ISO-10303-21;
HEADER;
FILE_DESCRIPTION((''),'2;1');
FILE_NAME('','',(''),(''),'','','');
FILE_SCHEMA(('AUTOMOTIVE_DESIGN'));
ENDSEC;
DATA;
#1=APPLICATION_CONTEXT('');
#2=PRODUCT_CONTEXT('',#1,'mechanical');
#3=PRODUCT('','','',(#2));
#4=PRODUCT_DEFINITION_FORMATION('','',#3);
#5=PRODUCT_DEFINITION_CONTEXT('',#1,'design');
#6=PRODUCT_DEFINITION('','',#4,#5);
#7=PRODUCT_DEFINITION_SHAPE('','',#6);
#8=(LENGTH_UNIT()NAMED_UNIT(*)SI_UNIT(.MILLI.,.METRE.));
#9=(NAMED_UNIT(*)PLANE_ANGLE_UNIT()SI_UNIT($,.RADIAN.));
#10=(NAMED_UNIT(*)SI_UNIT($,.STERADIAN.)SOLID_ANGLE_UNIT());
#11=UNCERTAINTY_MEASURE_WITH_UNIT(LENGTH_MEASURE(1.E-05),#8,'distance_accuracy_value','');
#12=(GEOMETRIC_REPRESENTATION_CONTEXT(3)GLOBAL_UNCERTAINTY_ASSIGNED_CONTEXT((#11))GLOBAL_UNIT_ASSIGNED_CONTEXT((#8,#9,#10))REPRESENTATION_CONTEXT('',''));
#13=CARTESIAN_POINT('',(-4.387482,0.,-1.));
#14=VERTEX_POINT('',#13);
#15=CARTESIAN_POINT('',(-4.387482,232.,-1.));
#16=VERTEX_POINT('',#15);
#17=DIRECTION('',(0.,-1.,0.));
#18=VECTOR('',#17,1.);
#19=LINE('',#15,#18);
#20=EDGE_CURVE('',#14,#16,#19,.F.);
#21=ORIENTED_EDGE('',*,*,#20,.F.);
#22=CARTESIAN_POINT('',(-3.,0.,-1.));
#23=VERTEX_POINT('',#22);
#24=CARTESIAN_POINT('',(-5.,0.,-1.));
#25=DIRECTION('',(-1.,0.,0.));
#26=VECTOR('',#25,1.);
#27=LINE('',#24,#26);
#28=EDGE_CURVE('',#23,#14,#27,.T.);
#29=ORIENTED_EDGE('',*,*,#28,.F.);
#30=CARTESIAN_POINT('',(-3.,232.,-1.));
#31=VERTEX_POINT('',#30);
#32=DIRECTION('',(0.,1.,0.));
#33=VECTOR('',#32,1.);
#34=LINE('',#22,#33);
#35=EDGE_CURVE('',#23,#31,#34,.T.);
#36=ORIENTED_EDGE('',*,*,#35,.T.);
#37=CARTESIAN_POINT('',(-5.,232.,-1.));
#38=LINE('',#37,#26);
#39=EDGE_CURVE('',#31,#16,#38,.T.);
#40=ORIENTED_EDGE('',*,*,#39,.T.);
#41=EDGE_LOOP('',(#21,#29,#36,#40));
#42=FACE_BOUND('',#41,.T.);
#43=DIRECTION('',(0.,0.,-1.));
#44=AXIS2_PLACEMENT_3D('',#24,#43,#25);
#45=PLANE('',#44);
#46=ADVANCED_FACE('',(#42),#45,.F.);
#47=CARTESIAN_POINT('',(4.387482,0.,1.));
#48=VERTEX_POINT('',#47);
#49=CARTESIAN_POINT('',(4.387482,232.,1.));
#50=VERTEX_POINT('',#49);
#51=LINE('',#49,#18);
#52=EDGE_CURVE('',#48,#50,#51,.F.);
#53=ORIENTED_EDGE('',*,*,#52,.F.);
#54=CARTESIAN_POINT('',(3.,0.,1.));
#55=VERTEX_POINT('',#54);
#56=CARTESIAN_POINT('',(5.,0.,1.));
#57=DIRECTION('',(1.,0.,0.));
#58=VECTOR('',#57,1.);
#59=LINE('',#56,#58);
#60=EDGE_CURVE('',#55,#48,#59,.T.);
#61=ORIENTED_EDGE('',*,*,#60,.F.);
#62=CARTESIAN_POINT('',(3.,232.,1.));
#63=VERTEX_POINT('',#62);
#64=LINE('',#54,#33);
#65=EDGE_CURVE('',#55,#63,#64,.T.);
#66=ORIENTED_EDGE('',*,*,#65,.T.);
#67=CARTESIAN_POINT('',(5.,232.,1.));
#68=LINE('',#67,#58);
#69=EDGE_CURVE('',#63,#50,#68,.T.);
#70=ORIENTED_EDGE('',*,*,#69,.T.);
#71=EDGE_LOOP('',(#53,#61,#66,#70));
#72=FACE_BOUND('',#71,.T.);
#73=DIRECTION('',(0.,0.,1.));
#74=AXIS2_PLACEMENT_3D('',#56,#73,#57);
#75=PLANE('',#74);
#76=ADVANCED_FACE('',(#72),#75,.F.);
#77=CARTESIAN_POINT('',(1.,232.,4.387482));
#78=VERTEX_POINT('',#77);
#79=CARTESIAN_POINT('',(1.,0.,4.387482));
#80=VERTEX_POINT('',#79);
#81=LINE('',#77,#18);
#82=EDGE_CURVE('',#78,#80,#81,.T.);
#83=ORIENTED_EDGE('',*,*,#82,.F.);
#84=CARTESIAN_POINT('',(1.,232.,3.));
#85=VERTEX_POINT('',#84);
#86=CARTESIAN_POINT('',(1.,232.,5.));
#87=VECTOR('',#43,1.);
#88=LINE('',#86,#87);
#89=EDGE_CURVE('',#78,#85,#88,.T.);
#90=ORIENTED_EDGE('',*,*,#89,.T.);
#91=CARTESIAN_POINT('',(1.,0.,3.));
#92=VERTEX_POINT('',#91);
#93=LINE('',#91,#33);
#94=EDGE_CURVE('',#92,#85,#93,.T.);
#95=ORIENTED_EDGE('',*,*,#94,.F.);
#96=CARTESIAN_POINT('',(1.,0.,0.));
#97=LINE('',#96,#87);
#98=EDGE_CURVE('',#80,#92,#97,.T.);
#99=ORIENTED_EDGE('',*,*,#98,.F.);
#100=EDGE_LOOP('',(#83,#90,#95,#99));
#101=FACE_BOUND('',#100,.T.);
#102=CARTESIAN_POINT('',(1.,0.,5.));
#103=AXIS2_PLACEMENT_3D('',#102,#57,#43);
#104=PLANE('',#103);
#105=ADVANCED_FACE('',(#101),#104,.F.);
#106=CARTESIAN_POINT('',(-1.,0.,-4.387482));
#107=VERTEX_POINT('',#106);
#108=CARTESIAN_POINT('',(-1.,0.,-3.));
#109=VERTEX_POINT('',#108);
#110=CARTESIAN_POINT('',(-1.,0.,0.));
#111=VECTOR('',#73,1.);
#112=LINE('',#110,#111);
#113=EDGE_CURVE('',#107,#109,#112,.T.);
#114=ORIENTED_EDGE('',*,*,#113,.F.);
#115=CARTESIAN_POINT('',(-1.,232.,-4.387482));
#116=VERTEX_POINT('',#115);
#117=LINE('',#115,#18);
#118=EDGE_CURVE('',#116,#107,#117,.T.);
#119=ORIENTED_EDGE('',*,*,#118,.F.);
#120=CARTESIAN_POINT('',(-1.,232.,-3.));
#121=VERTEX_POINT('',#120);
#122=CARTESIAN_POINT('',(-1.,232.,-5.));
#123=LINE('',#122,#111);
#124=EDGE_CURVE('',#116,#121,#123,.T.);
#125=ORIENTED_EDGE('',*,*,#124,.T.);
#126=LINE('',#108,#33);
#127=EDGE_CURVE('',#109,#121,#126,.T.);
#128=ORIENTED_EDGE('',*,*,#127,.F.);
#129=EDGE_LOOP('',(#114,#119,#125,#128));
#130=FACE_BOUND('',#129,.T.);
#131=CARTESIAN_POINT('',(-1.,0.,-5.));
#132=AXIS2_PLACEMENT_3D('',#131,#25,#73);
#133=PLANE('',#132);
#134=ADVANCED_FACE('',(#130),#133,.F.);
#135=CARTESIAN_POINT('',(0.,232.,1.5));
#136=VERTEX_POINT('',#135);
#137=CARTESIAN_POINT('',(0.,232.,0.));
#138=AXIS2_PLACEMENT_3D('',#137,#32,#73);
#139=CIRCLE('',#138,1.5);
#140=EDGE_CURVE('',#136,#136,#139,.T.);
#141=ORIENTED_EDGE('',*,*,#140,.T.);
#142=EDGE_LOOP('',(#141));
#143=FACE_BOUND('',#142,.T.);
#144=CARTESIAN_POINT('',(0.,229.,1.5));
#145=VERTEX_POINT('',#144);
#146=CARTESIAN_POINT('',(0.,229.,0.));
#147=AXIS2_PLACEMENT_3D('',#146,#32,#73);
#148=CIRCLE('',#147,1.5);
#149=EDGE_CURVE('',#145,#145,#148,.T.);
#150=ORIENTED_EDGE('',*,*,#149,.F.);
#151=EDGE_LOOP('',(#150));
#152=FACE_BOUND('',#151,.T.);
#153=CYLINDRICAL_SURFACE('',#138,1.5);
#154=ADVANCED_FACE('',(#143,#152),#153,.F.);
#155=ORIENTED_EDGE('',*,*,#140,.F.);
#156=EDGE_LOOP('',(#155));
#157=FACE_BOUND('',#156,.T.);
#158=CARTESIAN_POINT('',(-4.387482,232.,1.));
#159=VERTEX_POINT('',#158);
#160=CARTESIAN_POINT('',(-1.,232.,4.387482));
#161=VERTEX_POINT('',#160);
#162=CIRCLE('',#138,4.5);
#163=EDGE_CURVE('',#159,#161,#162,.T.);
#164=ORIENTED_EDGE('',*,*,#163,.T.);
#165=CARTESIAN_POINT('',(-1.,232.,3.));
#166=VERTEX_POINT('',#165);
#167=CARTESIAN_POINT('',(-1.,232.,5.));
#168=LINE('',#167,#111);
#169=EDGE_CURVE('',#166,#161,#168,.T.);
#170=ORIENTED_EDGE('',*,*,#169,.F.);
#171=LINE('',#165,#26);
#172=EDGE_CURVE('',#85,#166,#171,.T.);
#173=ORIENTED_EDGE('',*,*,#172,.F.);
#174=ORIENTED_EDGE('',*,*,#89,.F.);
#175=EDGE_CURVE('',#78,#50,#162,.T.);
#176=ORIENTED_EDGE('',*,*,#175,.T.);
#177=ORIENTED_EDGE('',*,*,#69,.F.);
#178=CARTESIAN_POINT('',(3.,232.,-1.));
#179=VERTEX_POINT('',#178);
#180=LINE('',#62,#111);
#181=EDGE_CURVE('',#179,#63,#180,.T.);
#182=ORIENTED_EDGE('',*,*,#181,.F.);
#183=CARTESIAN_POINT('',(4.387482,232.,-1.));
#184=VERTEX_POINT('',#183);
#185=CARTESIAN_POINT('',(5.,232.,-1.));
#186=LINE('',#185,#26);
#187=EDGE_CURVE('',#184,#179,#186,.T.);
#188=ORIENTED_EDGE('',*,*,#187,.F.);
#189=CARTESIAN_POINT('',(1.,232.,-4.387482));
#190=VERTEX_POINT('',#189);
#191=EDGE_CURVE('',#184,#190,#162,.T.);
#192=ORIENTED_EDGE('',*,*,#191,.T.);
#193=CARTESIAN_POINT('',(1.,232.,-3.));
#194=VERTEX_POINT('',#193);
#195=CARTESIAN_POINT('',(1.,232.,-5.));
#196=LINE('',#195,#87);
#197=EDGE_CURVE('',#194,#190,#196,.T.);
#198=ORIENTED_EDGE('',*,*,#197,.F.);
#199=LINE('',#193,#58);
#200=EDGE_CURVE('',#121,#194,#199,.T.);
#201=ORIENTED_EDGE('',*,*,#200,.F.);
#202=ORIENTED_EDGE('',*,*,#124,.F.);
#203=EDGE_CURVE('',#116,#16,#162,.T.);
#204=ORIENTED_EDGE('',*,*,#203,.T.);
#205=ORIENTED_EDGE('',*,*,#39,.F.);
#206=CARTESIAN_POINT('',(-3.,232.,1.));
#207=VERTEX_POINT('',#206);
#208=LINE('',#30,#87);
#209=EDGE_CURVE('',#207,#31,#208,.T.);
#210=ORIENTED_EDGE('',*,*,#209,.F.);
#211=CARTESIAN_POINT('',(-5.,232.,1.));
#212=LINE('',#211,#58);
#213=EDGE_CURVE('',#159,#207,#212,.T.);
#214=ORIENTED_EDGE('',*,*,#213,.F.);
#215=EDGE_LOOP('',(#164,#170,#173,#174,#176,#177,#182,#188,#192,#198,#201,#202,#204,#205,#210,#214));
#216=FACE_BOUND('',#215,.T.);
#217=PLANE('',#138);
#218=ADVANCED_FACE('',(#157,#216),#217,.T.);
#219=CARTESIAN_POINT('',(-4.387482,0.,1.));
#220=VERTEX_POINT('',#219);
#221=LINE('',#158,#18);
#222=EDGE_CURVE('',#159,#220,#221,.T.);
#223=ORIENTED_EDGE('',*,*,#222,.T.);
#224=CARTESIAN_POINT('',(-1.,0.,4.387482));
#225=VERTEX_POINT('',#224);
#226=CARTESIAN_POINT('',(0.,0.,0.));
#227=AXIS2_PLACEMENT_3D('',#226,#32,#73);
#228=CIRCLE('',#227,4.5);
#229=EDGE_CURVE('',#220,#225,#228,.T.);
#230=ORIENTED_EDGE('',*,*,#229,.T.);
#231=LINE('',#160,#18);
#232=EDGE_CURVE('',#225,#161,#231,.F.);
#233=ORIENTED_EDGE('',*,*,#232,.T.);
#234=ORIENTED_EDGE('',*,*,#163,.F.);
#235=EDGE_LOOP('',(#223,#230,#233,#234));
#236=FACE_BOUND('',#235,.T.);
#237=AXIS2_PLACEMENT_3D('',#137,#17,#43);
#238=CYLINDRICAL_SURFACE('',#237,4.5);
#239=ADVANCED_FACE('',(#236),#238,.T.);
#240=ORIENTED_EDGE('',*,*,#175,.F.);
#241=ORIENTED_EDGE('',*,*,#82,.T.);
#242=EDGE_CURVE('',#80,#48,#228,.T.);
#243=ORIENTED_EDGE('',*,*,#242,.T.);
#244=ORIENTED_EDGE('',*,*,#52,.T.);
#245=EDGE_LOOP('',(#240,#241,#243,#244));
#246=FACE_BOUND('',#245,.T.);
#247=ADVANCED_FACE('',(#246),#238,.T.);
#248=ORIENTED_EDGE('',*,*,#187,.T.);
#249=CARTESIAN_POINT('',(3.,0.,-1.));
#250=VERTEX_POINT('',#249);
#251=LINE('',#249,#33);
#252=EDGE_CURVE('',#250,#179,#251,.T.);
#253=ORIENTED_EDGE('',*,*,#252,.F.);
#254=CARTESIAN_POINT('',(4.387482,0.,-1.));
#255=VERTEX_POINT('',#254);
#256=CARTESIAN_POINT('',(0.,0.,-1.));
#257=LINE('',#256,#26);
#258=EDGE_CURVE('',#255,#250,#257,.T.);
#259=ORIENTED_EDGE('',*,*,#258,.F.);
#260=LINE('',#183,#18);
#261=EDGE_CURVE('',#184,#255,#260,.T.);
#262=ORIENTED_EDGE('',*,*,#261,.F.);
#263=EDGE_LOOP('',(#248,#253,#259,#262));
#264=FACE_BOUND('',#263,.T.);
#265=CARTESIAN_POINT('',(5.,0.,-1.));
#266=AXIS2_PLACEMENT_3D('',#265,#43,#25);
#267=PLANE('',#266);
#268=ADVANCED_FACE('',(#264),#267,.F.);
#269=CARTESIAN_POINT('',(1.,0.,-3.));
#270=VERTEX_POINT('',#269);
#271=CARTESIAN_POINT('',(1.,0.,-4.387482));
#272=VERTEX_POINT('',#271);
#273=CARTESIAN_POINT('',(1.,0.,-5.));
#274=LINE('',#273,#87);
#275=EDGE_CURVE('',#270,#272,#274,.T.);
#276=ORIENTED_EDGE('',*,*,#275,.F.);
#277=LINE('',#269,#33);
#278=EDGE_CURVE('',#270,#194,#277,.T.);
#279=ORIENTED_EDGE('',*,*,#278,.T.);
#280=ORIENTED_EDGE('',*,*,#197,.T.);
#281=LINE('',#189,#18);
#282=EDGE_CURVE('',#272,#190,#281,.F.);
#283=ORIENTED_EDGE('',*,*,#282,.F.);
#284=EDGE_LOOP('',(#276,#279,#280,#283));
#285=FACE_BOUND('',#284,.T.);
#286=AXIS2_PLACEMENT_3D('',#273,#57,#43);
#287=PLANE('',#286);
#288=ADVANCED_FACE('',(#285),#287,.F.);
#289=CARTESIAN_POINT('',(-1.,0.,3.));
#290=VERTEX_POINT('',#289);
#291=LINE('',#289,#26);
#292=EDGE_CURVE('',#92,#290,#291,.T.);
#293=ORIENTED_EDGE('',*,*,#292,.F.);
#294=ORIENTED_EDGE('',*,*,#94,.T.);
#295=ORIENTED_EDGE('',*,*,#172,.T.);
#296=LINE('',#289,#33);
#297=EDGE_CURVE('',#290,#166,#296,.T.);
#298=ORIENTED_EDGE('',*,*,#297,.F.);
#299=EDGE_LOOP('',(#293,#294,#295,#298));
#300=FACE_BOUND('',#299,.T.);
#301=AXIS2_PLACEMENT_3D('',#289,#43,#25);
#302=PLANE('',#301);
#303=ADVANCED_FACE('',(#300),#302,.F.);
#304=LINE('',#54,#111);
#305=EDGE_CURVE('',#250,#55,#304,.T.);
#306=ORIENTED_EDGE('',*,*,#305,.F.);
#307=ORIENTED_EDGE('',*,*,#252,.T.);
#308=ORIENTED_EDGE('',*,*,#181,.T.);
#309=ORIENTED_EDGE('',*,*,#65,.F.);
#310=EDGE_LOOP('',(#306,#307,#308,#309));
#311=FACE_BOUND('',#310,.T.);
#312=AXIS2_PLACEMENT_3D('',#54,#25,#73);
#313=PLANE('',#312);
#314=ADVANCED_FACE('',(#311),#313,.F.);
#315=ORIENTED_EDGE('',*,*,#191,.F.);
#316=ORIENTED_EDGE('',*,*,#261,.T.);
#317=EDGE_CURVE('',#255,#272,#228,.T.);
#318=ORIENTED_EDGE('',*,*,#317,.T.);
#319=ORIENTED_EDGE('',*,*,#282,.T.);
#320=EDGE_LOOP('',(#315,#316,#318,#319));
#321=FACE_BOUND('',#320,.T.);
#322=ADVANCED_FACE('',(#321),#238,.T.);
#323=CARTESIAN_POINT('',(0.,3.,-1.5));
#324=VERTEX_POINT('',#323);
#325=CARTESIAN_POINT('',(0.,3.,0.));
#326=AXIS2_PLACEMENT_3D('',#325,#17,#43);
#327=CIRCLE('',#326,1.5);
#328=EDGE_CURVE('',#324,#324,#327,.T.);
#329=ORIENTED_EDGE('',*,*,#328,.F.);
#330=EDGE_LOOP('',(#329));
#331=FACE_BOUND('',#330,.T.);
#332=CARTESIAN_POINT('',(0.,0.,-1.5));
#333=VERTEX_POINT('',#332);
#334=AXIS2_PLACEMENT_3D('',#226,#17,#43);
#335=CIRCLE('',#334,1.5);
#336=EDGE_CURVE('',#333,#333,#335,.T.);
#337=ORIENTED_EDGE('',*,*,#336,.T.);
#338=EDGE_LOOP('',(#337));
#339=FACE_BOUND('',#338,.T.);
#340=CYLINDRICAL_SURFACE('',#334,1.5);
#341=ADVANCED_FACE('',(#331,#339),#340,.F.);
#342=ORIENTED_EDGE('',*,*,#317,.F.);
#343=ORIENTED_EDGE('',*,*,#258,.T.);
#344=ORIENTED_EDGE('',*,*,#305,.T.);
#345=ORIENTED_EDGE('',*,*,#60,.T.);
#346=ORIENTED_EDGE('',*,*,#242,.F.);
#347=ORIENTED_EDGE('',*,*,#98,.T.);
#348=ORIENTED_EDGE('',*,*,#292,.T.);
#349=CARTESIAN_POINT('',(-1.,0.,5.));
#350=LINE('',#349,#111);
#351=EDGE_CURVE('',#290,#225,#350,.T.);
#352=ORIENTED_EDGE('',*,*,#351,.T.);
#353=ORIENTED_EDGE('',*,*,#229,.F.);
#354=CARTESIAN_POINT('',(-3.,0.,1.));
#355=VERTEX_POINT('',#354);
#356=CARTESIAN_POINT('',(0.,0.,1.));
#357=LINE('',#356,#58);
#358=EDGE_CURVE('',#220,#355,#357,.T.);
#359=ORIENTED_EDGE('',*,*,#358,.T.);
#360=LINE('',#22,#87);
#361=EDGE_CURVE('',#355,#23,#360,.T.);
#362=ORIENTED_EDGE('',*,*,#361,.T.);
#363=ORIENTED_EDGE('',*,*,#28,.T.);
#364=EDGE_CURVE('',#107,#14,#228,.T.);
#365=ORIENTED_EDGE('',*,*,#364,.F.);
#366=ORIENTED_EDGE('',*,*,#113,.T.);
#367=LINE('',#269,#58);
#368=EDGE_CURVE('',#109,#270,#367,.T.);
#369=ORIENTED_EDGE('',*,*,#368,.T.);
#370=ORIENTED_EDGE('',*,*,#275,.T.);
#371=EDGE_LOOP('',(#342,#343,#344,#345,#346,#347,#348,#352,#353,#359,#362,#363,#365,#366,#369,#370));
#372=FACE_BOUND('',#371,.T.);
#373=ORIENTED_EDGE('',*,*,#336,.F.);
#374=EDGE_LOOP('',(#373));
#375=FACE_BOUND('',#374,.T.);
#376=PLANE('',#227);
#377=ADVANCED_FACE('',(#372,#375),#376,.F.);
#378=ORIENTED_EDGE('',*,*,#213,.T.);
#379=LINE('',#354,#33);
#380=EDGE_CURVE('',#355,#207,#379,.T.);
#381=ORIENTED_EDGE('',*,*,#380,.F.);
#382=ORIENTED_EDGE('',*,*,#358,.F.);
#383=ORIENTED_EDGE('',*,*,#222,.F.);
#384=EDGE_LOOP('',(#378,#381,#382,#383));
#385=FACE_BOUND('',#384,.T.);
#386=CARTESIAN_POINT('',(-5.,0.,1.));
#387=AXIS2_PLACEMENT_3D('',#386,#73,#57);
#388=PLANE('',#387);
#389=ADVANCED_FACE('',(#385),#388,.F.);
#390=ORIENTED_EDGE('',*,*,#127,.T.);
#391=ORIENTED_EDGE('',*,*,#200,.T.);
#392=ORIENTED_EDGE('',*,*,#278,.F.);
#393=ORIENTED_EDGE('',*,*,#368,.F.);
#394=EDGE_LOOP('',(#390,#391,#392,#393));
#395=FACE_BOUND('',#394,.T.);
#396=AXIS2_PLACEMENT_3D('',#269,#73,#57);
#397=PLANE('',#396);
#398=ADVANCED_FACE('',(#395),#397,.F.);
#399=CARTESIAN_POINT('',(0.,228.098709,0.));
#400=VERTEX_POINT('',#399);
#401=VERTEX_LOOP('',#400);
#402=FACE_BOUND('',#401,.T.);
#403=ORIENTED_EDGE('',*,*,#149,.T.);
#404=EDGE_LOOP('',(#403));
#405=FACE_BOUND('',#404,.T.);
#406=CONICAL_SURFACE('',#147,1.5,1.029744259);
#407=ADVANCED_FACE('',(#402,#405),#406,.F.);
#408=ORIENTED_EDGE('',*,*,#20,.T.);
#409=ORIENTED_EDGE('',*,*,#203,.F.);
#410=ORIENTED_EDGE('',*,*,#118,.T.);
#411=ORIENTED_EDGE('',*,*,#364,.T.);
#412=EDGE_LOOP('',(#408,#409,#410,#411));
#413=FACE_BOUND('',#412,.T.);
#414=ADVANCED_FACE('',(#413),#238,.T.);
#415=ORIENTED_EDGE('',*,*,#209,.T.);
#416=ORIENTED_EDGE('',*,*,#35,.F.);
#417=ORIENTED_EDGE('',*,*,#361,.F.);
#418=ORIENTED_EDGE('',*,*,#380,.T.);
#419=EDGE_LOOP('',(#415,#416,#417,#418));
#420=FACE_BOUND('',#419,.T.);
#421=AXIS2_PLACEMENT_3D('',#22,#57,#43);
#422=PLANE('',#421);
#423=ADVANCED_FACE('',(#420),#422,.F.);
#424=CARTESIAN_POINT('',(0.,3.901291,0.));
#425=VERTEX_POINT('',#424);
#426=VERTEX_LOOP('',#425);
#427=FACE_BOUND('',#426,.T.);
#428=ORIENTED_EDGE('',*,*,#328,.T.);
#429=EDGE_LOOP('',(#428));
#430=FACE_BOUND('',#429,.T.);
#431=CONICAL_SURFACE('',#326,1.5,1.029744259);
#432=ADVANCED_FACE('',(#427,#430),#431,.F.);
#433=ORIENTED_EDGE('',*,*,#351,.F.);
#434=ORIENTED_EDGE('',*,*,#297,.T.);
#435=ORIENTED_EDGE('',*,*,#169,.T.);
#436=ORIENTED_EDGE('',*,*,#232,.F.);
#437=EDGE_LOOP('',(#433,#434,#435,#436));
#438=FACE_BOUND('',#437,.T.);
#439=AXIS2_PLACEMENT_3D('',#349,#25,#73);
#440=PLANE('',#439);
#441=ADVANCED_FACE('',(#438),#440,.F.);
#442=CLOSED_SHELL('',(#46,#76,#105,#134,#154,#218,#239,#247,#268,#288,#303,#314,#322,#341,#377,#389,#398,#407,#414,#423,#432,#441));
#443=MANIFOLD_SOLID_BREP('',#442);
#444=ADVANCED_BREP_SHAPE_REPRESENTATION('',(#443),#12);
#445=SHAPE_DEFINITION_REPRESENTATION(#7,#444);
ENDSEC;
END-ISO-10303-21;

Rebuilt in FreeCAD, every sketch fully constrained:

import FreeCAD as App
import Part
import Sketcher
from FreeCAD import Vector

doc = App.newDocument("Part")
body = doc.addObject("PartDesign::Body", "Body")

sketch1 = body.newObject("Sketcher::SketchObject", "Sketch")
sketch1.AttachmentSupport = (doc.getObject("XZ_Plane"), [""])
sketch1.MapMode = "FlatFace"
sketch1.addGeometry(Part.Circle(Vector(0, 0, 0), Vector(0, 0, 1), 4.5), False)
sketch1.addConstraint([
    Sketcher.Constraint("Coincident", 0, 3, -1, 1),
    Sketcher.Constraint("Diameter", 0, 9.0),
])
pad1 = body.newObject("PartDesign::Pad", "Pad")
pad1.Profile = sketch1
pad1.Length = 232
pad1.Reversed = True

sketch2 = body.newObject("Sketcher::SketchObject", "Sketch001")
sketch2.AttachmentSupport = (doc.getObject("XZ_Plane"), [""])
sketch2.MapMode = "FlatFace"
sketch2.addGeometry(Part.Circle(Vector(0, 0, 0), Vector(0, 0, 1), 1.5), False)
sketch2.addConstraint([
    Sketcher.Constraint("Coincident", 0, 3, -1, 1),
    Sketcher.Constraint("Diameter", 0, 3.0),
])
doc.recompute()
hole = body.newObject("PartDesign::Hole", "Hole")
hole.Profile = sketch2
hole.ThreadType = "None"
hole.Diameter = 3
hole.DepthType = "Dimension"
hole.Depth = 3
hole.DrillPoint = "Angled"
hole.DrillPointAngle = 118

sketch3 = body.newObject("Sketcher::SketchObject", "Sketch002")
sketch3.AttachmentSupport = (doc.getObject("XZ_Plane"), [""])
sketch3.MapMode = "FlatFace"
sketch3.AttachmentOffset = App.Placement(Vector(0, 0, -232), App.Rotation())
sketch3.addGeometry(Part.Circle(Vector(0, 0, 0), Vector(0, 0, 1), 1.5), False)
sketch3.addConstraint([
    Sketcher.Constraint("Coincident", 0, 3, -1, 1),
    Sketcher.Constraint("Diameter", 0, 3.0),
])
doc.recompute()
hole2 = body.newObject("PartDesign::Hole", "Hole001")
hole2.Profile = sketch3
hole2.ThreadType = "None"
hole2.Diameter = 3
hole2.DepthType = "Dimension"
hole2.Depth = 3
hole2.DrillPoint = "Angled"
hole2.DrillPointAngle = 118
hole2.Reversed = True

sketch4 = body.newObject("Sketcher::SketchObject", "Sketch003")
sketch4.AttachmentSupport = (doc.getObject("XZ_Plane"), [""])
sketch4.MapMode = "FlatFace"
sketch4.AttachmentOffset = App.Placement(Vector(0, 0, -232), App.Rotation())
sketch4.addGeometry([
    Part.LineSegment(Vector(-5, -1, 0), Vector(-5, 1, 0)),
    Part.LineSegment(Vector(-5, 1, 0), Vector(-3, 1, 0)),
    Part.LineSegment(Vector(-3, 1, 0), Vector(-3, -1, 0)),
    Part.LineSegment(Vector(-3, -1, 0), Vector(-5, -1, 0)),
], False)
sketch4.addConstraint([
    Sketcher.Constraint("Coincident", 0, 2, 1, 1),
    Sketcher.Constraint("Coincident", 1, 2, 2, 1),
    Sketcher.Constraint("Coincident", 2, 2, 3, 1),
    Sketcher.Constraint("Coincident", 3, 2, 0, 1),
    Sketcher.Constraint("Vertical", 0),
    Sketcher.Constraint("Horizontal", 1),
    Sketcher.Constraint("Vertical", 2),
    Sketcher.Constraint("Horizontal", 3),
    Sketcher.Constraint("Equal", 3, 0),
    Sketcher.Constraint("DistanceX", 1, 1, 1, 2, 2.0),
    Sketcher.Constraint("DistanceX", 0, 2, -1, 1, 5.0),
    Sketcher.Constraint("DistanceY", -1, 1, 0, 2, 1.0),
])
pocket1 = body.newObject("PartDesign::Pocket", "Pocket")
pocket1.Profile = sketch4
pocket1.Type = "ThroughAll"
pocket1.Reversed = True
doc.recompute()

polarpattern = body.newObject("PartDesign::PolarPattern", "PolarPattern")
polarpattern.Originals = [pocket1]
polarpattern.Axis = (doc.getObject("Y_Axis"), [""])
polarpattern.Angle = 360
polarpattern.Occurrences = 4
body.Tip = polarpattern

doc.recompute()
